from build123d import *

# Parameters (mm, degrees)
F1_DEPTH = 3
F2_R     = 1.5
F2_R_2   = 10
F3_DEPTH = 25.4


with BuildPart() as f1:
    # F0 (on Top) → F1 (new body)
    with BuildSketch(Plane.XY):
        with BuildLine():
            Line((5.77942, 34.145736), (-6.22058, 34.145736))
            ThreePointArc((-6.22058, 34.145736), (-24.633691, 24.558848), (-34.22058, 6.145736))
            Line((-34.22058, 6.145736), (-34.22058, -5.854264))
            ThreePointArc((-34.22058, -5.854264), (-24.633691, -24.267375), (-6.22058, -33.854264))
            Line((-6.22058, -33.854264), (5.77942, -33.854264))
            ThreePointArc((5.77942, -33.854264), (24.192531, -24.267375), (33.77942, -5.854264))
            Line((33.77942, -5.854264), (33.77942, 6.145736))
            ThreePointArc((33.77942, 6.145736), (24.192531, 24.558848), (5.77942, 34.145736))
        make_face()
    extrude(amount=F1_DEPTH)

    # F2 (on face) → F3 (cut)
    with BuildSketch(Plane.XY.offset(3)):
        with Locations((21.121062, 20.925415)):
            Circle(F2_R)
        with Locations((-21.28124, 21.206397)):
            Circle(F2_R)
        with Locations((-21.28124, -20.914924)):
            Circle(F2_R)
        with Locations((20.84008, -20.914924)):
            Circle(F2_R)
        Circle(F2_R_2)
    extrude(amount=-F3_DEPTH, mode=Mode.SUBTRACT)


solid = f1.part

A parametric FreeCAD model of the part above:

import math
import FreeCAD as App
import Part
import Sketcher
Q = App.Units.Quantity

doc = App.newDocument("Part")
body = doc.addObject("PartDesign::Body", "Body")

# Sketch on XY plane
sketch1 = body.newObject("Sketcher::SketchObject", "Sketch")
sketch1.AttachmentSupport = (doc.getObject("XY_Plane"), [""])
sketch1.MapMode = "FlatFace"
sketch1.addGeometry(Part.LineSegment(App.Vector(5.77942, 34.145736, 0), App.Vector(-6.22058, 34.145736, 0)), False)
sketch1.addGeometry(Part.ArcOfCircle(Part.Circle(App.Vector(-0.220581, 0.145737, 0), App.Vector(0, 0, 1), 34.525351), math.radians(100.007978), math.radians(169.992022)), False)
sketch1.addGeometry(Part.LineSegment(App.Vector(-34.22058, 6.145736, 0), App.Vector(-34.22058, -5.854264, 0)), False)
sketch1.addGeometry(Part.ArcOfCircle(Part.Circle(App.Vector(-0.220579, 0.145737, 0), App.Vector(0, 0, 1), 34.525354), math.radians(-169.992018), math.radians(-100.007982)), False)
sketch1.addGeometry(Part.LineSegment(App.Vector(-6.22058, -33.854264, 0), App.Vector(5.77942, -33.854264, 0)), False)
sketch1.addGeometry(Part.ArcOfCircle(Part.Circle(App.Vector(-0.220581, 0.145737, 0), App.Vector(0, 0, 1), 34.525354), math.radians(-79.992018), math.radians(-10.007982)), False)
sketch1.addGeometry(Part.LineSegment(App.Vector(33.77942, -5.854264, 0), App.Vector(33.77942, 6.145736, 0)), False)
sketch1.addGeometry(Part.ArcOfCircle(Part.Circle(App.Vector(-0.220579, 0.145737, 0), App.Vector(0, 0, 1), 34.525351), math.radians(10.007978), math.radians(79.992022)), False)
sketch1.addConstraint(Sketcher.Constraint("Coincident", 0, 2, 1, 1))
sketch1.addConstraint(Sketcher.Constraint("Coincident", 1, 2, 2, 1))
sketch1.addConstraint(Sketcher.Constraint("Coincident", 2, 2, 3, 1))
sketch1.addConstraint(Sketcher.Constraint("Coincident", 3, 2, 4, 1))
sketch1.addConstraint(Sketcher.Constraint("Coincident", 4, 2, 5, 1))
sketch1.addConstraint(Sketcher.Constraint("Coincident", 5, 2, 6, 1))
sketch1.addConstraint(Sketcher.Constraint("Coincident", 6, 2, 7, 1))
sketch1.addConstraint(Sketcher.Constraint("Coincident", 7, 2, 0, 1))
sketch1.addConstraint(Sketcher.Constraint("Horizontal", 0))
sketch1.addConstraint(Sketcher.Constraint("Vertical", 2))
sketch1.addConstraint(Sketcher.Constraint("Horizontal", 4))
sketch1.addConstraint(Sketcher.Constraint("Vertical", 6))
sketch1.addConstraint(Sketcher.Constraint("Coincident", 3, 3, 1, 3))
sketch1.addConstraint(Sketcher.Constraint("Coincident", 5, 3, 1, 3))
sketch1.addConstraint(Sketcher.Constraint("Coincident", 7, 3, 1, 3))
sketch1.addConstraint(Sketcher.Constraint("Equal", 3, 5))
sketch1.addConstraint(Sketcher.Constraint("Equal", 1, 7))
sketch1.addConstraint(Sketcher.Constraint("Horizontal", 2, 2, 5, 2))
sketch1.addConstraint(Sketcher.Constraint("Vertical", 0, 2, 3, 2))
sketch1.addConstraint(Sketcher.Constraint("Equal", 4, 2))
sketch1.addConstraint(Sketcher.Constraint("DistanceX", 0, 2, 0, 1, Q("12 mm")))
sketch1.addConstraint(Sketcher.Constraint("DistanceY", 1, 3, 0, 2, Q("33.999999 mm")))
sketch1.addConstraint(Sketcher.Constraint("DistanceX", 1, 2, 1, 3, Q("33.999999 mm")))
sketch1.addConstraint(Sketcher.Constraint("DistanceX", 1, 3, -1, 1, Q("0.220581 mm")))
sketch1.addConstraint(Sketcher.Constraint("DistanceY", -1, 1, 1, 3, Q("0.145737 mm")))
pad1 = body.newObject("PartDesign::Pad", "Pad")
pad1.Profile = sketch1
pad1.Length = 3

# Sketch on XY plane
sketch2 = body.newObject("Sketcher::SketchObject", "Sketch001")
sketch2.AttachmentSupport = (doc.getObject("XY_Plane"), [""])
sketch2.MapMode = "FlatFace"
sketch2.AttachmentOffset = App.Placement(App.Vector(0, 0, 3), App.Rotation())
sketch2.addGeometry(Part.Circle(App.Vector(21.121062, 20.925415, 0), App.Vector(0, 0, 1), 1.5), False)
sketch2.addGeometry(Part.Circle(App.Vector(-21.28124, 21.206397, 0), App.Vector(0, 0, 1), 1.5), False)
sketch2.addGeometry(Part.Circle(App.Vector(-21.28124, -20.914924, 0), App.Vector(0, 0, 1), 1.5), False)
sketch2.addGeometry(Part.Circle(App.Vector(20.84008, -20.914924, 0), App.Vector(0, 0, 1), 1.5), False)
sketch2.addGeometry(Part.Circle(App.Vector(0, 0, 0), App.Vector(0, 0, 1), 10), False)
sketch2.addConstraint(Sketcher.Constraint("Coincident", 4, 3, -1, 1))
sketch2.addConstraint(Sketcher.Constraint("Equal", 0, 1))
sketch2.addConstraint(Sketcher.Constraint("Equal", 1, 2))
sketch2.addConstraint(Sketcher.Constraint("Equal", 2, 3))
sketch2.addConstraint(Sketcher.Constraint("Horizontal", 2, 3, 3, 3))
sketch2.addConstraint(Sketcher.Constraint("Vertical", 1, 3, 2, 3))
sketch2.addConstraint(Sketcher.Constraint("Diameter", 0, Q("3 mm")))
sketch2.addConstraint(Sketcher.Constraint("Diameter", 4, Q("20 mm")))
sketch2.addConstraint(Sketcher.Constraint("DistanceX", -1, 1, 0, 3, Q("21.121062 mm")))
sketch2.addConstraint(Sketcher.Constraint("DistanceX", 1, 3, -1, 1, Q("21.28124 mm")))
sketch2.addConstraint(Sketcher.Constraint("DistanceX", -1, 1, 3, 3, Q("20.84008 mm")))
sketch2.addConstraint(Sketcher.Constraint("DistanceY", 0, 3, 1, 3, Q("0.280982 mm")))
sketch2.addConstraint(Sketcher.Constraint("DistanceY", 2, 3, 1, 3, Q("42.121321 mm")))
sketch2.addConstraint(Sketcher.Constraint("DistanceY", -1, 1, 0, 3, Q("20.925415 mm")))
pocket1 = body.newObject("PartDesign::Pocket", "Pocket")
pocket1.Profile = sketch2
pocket1.Length = 25.4

doc.recompute()
